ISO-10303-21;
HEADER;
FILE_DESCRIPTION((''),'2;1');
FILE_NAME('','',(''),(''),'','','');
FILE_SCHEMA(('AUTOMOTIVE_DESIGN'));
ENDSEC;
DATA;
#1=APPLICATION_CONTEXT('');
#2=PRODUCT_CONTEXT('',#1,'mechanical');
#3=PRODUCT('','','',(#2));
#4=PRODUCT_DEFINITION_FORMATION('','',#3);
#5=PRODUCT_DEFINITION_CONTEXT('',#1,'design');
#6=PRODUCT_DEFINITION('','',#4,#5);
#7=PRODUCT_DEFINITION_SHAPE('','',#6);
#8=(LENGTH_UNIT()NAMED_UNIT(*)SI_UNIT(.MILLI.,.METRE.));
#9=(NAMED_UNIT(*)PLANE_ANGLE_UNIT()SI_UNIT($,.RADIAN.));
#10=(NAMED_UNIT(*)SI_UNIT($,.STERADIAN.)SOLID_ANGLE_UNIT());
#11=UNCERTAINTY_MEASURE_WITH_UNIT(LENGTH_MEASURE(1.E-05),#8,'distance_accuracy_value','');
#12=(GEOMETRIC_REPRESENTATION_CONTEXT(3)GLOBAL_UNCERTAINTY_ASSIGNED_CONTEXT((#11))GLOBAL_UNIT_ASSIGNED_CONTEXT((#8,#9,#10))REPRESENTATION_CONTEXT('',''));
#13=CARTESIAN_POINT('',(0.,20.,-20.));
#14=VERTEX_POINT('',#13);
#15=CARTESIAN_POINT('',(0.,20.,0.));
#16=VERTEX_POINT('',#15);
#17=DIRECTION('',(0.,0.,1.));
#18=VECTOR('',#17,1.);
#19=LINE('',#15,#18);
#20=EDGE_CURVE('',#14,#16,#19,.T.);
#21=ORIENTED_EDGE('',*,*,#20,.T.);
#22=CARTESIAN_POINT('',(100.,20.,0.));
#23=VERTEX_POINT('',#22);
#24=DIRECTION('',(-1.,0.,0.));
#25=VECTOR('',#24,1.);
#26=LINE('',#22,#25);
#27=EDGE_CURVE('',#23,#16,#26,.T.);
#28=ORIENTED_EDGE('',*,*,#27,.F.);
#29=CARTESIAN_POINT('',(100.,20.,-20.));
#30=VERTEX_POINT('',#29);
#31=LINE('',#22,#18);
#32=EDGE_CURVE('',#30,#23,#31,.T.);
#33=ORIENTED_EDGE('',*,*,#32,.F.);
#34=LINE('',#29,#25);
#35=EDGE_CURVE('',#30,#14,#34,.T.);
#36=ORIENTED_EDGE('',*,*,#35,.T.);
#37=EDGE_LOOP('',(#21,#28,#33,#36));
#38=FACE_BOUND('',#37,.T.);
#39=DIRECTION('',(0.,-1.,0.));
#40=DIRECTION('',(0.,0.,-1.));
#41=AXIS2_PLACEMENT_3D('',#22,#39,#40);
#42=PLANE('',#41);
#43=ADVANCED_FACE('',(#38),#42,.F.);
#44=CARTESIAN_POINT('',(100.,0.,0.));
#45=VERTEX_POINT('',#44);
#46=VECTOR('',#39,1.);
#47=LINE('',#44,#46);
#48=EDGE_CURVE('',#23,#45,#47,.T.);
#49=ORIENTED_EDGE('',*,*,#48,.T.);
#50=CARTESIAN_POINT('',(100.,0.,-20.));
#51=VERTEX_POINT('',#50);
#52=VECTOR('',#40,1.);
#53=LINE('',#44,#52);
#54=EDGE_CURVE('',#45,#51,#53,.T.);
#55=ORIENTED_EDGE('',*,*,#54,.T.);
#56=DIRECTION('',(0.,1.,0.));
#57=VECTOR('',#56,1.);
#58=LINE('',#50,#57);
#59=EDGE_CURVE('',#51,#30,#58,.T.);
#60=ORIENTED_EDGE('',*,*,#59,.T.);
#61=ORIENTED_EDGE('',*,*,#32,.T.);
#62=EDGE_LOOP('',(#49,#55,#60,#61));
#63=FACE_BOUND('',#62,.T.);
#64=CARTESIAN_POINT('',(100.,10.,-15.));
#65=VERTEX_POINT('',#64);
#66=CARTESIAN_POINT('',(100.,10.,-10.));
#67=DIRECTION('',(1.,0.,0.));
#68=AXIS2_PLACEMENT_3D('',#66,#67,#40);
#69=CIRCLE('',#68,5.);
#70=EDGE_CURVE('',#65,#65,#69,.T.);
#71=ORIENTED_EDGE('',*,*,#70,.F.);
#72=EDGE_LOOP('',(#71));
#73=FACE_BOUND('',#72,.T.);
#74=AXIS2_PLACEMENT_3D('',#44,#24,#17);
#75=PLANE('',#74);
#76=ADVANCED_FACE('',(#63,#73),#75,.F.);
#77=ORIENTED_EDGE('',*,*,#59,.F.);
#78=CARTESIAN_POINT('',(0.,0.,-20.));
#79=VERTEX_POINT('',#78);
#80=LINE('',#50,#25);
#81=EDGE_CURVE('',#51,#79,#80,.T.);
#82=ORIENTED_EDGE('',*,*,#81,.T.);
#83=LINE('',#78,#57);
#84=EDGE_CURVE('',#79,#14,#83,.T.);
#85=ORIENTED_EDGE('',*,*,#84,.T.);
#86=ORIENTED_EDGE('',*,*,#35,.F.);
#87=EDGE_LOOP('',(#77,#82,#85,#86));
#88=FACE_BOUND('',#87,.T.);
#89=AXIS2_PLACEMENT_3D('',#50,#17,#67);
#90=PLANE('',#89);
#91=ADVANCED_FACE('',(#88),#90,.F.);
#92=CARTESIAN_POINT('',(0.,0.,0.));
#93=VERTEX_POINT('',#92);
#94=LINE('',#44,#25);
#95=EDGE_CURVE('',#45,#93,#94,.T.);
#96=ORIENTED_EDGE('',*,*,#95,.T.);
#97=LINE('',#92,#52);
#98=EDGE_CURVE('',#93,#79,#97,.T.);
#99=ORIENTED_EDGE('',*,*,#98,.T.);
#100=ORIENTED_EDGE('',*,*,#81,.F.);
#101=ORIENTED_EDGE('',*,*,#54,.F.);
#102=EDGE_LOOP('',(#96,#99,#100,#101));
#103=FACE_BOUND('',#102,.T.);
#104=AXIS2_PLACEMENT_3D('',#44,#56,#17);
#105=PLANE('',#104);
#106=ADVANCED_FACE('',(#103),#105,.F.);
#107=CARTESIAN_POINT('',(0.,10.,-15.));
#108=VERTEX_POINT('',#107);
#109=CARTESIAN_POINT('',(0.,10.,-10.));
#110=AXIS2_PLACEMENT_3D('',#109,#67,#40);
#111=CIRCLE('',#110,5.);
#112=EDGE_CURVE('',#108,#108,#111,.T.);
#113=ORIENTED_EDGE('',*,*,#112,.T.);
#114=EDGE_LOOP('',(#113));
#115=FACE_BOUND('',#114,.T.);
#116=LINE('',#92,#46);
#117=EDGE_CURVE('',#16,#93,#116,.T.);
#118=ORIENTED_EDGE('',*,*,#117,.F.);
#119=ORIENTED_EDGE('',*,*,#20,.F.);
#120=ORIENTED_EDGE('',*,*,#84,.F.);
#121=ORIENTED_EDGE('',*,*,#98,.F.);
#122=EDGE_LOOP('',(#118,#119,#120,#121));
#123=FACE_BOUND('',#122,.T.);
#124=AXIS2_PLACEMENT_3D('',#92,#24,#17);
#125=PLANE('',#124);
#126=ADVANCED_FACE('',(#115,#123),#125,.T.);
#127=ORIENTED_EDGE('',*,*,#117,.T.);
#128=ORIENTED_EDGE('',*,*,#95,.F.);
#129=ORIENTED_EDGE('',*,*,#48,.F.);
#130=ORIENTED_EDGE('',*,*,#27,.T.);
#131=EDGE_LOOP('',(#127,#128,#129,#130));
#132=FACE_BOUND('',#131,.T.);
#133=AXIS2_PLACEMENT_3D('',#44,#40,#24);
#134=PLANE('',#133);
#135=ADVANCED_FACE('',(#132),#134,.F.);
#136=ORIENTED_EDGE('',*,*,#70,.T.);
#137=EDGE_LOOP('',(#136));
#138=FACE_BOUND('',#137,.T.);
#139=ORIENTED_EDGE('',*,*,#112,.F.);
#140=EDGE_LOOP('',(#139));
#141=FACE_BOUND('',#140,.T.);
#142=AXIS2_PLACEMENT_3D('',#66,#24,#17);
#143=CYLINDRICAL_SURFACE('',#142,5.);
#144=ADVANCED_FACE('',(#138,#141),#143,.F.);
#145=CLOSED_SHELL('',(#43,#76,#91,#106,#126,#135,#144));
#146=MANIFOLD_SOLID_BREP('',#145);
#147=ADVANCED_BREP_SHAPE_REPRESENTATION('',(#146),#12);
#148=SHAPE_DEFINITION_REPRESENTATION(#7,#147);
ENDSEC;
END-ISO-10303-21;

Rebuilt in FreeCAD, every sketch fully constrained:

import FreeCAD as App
import Part
import Sketcher

V = App.Vector
Q = App.Units.Quantity


def add_polygon(sketch, points):
    """Adds a closed chain of lines whose ends are joined by coincident constraints."""
    first, n = sketch.GeometryCount, len(points)
    for a, b in zip(points, points[1:] + points[:1]):
        sketch.addGeometry(Part.LineSegment(App.Vector(*a, 0), App.Vector(*b, 0)), False)
    for i in range(n):
        sketch.addConstraint(Sketcher.Constraint("Coincident", first + i, 2, first + (i + 1) % n, 1))

doc = App.newDocument("Part")
body = doc.addObject("PartDesign::Body", "Body")

sketch1 = body.newObject("Sketcher::SketchObject", "Sketch")
sketch1.AttachmentSupport = (doc.getObject("YZ_Plane"), [""])
sketch1.MapMode = "FlatFace"
add_polygon(sketch1, [(20, 0), (0, 0), (0, -20), (20, -20)])
sketch1.addGeometry(Part.Circle(V(10, -10, 0), V(0, 0, 1), 5), False)
sketch1.addConstraint(Sketcher.Constraint("Horizontal", 0))
sketch1.addConstraint(Sketcher.Constraint("Vertical", 1))
sketch1.addConstraint(Sketcher.Constraint("Horizontal", 2))
sketch1.addConstraint(Sketcher.Constraint("Vertical", 3))
sketch1.addConstraint(Sketcher.Constraint("Coincident", 0, 2, -1, 1))
sketch1.addConstraint(Sketcher.Constraint("Equal", 2, 1))
sketch1.addConstraint(Sketcher.Constraint("Diameter", 4, Q("10 mm")))
sketch1.addConstraint(Sketcher.Constraint("DistanceX", 0, 2, 0, 1, Q("20 mm")))
sketch1.addConstraint(Sketcher.Constraint("DistanceX", -1, 1, 4, 3, Q("10 mm")))
sketch1.addConstraint(Sketcher.Constraint("DistanceY", 4, 3, -1, 1, Q("10 mm")))
pad1 = body.newObject("PartDesign::Pad", "Pad")
pad1.Profile = sketch1
pad1.Length = 100

doc.recompute()
